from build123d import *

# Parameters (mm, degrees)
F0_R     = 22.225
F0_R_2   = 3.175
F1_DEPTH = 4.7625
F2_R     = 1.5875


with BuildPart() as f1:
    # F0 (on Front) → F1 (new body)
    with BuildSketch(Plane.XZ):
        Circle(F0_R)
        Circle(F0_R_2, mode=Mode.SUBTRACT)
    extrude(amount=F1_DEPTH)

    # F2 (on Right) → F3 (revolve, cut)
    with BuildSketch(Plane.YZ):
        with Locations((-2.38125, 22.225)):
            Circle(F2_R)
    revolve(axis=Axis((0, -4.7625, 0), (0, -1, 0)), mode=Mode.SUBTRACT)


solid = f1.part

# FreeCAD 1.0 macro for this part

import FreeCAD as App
import Part
import Sketcher
from FreeCAD import Vector
Q = App.Units.Quantity

doc = App.newDocument("Part")
body = doc.addObject("PartDesign::Body", "Body")

# Sketch on XZ plane
sketch1 = doc.addObject("Sketcher::SketchObject", "Sketch")
body.addObject(sketch1)
sketch1.AttachmentSupport = (doc.XZ_Plane, [""])
sketch1.MapMode = "FlatFace"
sketch1.addGeometry([
    Part.Circle(Vector(0, 0, 0), Vector(0, 0, 1), 22.2),
    Part.Circle(Vector(0, 0, 0), Vector(0, 0, 1), 3.2),
], False)
sketch1.addConstraint([
    Sketcher.Constraint("Coincident", 0, 3, -1, 1),
    Sketcher.Constraint("Coincident", 1, 3, -1, 1),
    Sketcher.Constraint("Diameter", 0, Q("1.75 in")),
    Sketcher.Constraint("Diameter", 1, Q("0.25 in")),
])
pad1 = doc.addObject("PartDesign::Pad", "Pad")
body.addObject(pad1)
pad1.Profile = sketch1
pad1.Length = Q("0.1875 in")

# Sketch on YZ plane
sketch2 = doc.addObject("Sketcher::SketchObject", "Sketch001")
body.addObject(sketch2)
sketch2.AttachmentSupport = (doc.YZ_Plane, [""])
sketch2.MapMode = "FlatFace"
sketch2.addGeometry(Part.Circle(Vector(-2.4, 22.2, 0), Vector(0, 0, 1), 1.6), False)
sketch2.addConstraint([
    Sketcher.Constraint("Diameter", 0, Q("0.125 in")),
    Sketcher.Constraint("DistanceX", 0, 3, -1, 1, Q("0.09375 in")),
    Sketcher.Constraint("DistanceY", -1, 1, 0, 3, Q("0.875 in")),
])
groove = doc.addObject("PartDesign::Groove", "Groove")
body.addObject(groove)
groove.Profile = sketch2
groove.ReferenceAxis = (sketch2, ["H_Axis"])
groove.Angle = 360

doc.recompute()
